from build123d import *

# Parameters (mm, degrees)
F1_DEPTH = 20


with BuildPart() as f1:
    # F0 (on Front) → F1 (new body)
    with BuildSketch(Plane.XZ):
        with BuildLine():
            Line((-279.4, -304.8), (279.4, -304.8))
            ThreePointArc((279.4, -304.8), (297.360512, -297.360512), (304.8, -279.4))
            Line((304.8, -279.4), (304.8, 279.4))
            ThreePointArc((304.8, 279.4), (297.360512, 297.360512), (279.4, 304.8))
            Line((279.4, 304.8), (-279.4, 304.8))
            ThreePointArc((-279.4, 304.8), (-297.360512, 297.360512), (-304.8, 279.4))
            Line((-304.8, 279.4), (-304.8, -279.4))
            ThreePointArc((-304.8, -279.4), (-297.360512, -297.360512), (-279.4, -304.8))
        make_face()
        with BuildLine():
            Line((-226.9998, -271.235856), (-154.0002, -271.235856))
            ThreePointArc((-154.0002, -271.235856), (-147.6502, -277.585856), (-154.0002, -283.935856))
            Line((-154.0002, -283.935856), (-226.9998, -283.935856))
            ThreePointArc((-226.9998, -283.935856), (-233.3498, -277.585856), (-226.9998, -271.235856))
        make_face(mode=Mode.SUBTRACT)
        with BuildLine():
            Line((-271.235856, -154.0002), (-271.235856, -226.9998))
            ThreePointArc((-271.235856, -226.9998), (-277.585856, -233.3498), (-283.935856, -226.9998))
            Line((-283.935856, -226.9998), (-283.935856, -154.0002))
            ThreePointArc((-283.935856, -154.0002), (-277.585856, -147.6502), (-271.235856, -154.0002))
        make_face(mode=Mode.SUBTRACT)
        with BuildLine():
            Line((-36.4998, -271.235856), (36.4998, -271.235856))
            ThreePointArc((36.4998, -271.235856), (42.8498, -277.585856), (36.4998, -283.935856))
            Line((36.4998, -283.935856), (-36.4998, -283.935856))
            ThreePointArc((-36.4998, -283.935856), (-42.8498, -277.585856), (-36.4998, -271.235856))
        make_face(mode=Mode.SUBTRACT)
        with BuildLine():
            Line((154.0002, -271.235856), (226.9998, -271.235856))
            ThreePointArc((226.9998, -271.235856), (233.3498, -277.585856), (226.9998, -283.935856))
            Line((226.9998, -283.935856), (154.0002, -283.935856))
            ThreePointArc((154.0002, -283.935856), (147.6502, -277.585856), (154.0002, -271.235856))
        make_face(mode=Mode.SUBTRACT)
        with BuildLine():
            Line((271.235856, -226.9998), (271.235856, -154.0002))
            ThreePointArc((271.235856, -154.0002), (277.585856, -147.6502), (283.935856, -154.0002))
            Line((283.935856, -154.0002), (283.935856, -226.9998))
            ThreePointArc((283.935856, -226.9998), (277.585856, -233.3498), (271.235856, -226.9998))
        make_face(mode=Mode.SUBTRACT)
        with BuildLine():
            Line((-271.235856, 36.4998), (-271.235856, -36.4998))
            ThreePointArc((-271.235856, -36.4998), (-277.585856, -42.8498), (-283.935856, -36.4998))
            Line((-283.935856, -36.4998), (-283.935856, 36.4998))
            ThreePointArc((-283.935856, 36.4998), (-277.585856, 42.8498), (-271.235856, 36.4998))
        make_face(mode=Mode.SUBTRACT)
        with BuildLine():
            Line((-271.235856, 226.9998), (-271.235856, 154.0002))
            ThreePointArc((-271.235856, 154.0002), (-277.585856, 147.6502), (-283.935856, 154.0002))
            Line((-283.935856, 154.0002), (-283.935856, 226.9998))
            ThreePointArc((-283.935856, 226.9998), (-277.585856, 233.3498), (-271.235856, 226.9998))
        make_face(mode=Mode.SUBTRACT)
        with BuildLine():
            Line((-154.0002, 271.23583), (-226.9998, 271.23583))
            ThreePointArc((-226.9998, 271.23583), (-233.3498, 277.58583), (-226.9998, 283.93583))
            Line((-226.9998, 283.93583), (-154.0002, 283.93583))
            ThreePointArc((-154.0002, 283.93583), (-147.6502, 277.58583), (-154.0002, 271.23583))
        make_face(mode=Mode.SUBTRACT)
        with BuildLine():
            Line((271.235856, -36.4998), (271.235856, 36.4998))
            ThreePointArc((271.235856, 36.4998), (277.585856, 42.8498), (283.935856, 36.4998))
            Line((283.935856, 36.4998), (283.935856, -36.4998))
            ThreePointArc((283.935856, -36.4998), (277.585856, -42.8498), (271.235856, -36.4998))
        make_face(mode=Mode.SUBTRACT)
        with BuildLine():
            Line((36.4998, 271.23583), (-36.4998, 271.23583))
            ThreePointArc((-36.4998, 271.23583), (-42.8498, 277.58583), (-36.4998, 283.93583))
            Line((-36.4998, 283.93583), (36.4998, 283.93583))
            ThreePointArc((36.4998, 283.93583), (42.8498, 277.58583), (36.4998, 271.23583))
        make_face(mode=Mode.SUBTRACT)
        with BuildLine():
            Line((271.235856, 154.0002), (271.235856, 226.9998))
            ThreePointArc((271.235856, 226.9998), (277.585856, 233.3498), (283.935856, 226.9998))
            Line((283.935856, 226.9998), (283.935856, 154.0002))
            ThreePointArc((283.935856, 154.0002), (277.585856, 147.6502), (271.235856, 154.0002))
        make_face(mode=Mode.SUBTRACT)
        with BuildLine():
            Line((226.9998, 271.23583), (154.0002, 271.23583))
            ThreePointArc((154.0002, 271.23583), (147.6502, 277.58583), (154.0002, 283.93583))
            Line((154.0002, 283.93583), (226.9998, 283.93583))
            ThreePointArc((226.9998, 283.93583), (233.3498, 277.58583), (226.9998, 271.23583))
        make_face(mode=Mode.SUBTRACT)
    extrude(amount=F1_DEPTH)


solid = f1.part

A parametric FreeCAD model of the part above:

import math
import FreeCAD as App
import Part
import Sketcher
from FreeCAD import Vector
Q = App.Units.Quantity

doc = App.newDocument("Part")
body = doc.addObject("PartDesign::Body", "Body")

sketch1 = body.newObject("Sketcher::SketchObject", "Sketch")
sketch1.AttachmentSupport = (doc.getObject("XZ_Plane"), [""])
sketch1.MapMode = "FlatFace"
sketch1.addGeometry(Part.LineSegment(Vector(-279, -305, 0), Vector(279, -305, 0)), False)
sketch1.addGeometry(Part.ArcOfCircle(Part.Circle(Vector(279, -279, 0), Vector(0, 0, 1), 25), math.radians(-90), math.radians(0)), False)
sketch1.addGeometry(Part.LineSegment(Vector(305, -279, 0), Vector(305, 279, 0)), False)
sketch1.addGeometry(Part.ArcOfCircle(Part.Circle(Vector(279, 279, 0), Vector(0, 0, 1), 25), math.radians(0), math.radians(90)), False)
sketch1.addGeometry(Part.LineSegment(Vector(279, 305, 0), Vector(-279, 305, 0)), False)
sketch1.addGeometry(Part.ArcOfCircle(Part.Circle(Vector(-279, 279, 0), Vector(0, 0, 1), 25), math.radians(90), math.radians(180)), False)
sketch1.addGeometry(Part.LineSegment(Vector(-305, 279, 0), Vector(-305, -279, 0)), False)
sketch1.addGeometry(Part.ArcOfCircle(Part.Circle(Vector(-279, -279, 0), Vector(0, 0, 1), 25), math.radians(-180), math.radians(-90)), False)
sketch1.addGeometry(Part.ArcOfCircle(Part.Circle(Vector(-227, -278, 0), Vector(0, 0, 1), 6), math.radians(90), math.radians(270)), False)
sketch1.addGeometry(Part.LineSegment(Vector(-227, -271, 0), Vector(-154, -271, 0)), False)
sketch1.addGeometry(Part.ArcOfCircle(Part.Circle(Vector(-154, -278, 0), Vector(0, 0, 1), 6), math.radians(-90), math.radians(90)), False)
sketch1.addGeometry(Part.LineSegment(Vector(-154, -284, 0), Vector(-227, -284, 0)), False)
sketch1.addGeometry(Part.ArcOfCircle(Part.Circle(Vector(-278, -154, 0), Vector(0, 0, 1), 6), math.radians(0), math.radians(180)), False)
sketch1.addGeometry(Part.LineSegment(Vector(-271, -154, 0), Vector(-271, -227, 0)), False)
sketch1.addGeometry(Part.ArcOfCircle(Part.Circle(Vector(-278, -227, 0), Vector(0, 0, 1), 6), math.radians(180), math.radians(360)), False)
sketch1.addGeometry(Part.LineSegment(Vector(-284, -227, 0), Vector(-284, -154, 0)), False)
sketch1.addGeometry(Part.ArcOfCircle(Part.Circle(Vector(-36, -278, 0), Vector(0, 0, 1), 6), math.radians(90), math.radians(270)), False)
sketch1.addGeometry(Part.LineSegment(Vector(-36, -271, 0), Vector(36, -271, 0)), False)
sketch1.addGeometry(Part.ArcOfCircle(Part.Circle(Vector(36, -278, 0), Vector(0, 0, 1), 6), math.radians(-90), math.radians(90)), False)
sketch1.addGeometry(Part.LineSegment(Vector(36, -284, 0), Vector(-36, -284, 0)), False)
sketch1.addGeometry(Part.ArcOfCircle(Part.Circle(Vector(154, -278, 0), Vector(0, 0, 1), 6), math.radians(90), math.radians(270)), False)
sketch1.addGeometry(Part.LineSegment(Vector(154, -271, 0), Vector(227, -271, 0)), False)
sketch1.addGeometry(Part.ArcOfCircle(Part.Circle(Vector(227, -278, 0), Vector(0, 0, 1), 6), math.radians(-90), math.radians(90)), False)
sketch1.addGeometry(Part.LineSegment(Vector(227, -284, 0), Vector(154, -284, 0)), False)
sketch1.addGeometry(Part.ArcOfCircle(Part.Circle(Vector(278, -227, 0), Vector(0, 0, 1), 6), math.radians(180), math.radians(360)), False)
sketch1.addGeometry(Part.LineSegment(Vector(271, -227, 0), Vector(271, -154, 0)), False)
sketch1.addGeometry(Part.ArcOfCircle(Part.Circle(Vector(278, -154, 0), Vector(0, 0, 1), 6), math.radians(0), math.radians(180)), False)
sketch1.addGeometry(Part.LineSegment(Vector(284, -154, 0), Vector(284, -227, 0)), False)
sketch1.addGeometry(Part.ArcOfCircle(Part.Circle(Vector(-278, 36, 0), Vector(0, 0, 1), 6), math.radians(0), math.radians(180)), False)
sketch1.addGeometry(Part.LineSegment(Vector(-271, 36, 0), Vector(-271, -36, 0)), False)
sketch1.addGeometry(Part.ArcOfCircle(Part.Circle(Vector(-278, -36, 0), Vector(0, 0, 1), 6), math.radians(180), math.radians(360)), False)
sketch1.addGeometry(Part.LineSegment(Vector(-284, -36, 0), Vector(-284, 36, 0)), False)
sketch1.addGeometry(Part.ArcOfCircle(Part.Circle(Vector(-278, 227, 0), Vector(0, 0, 1), 6), math.radians(0), math.radians(180)), False)
sketch1.addGeometry(Part.LineSegment(Vector(-271, 227, 0), Vector(-271, 154, 0)), False)
sketch1.addGeometry(Part.ArcOfCircle(Part.Circle(Vector(-278, 154, 0), Vector(0, 0, 1), 6), math.radians(180), math.radians(360)), False)
sketch1.addGeometry(Part.LineSegment(Vector(-284, 154, 0), Vector(-284, 227, 0)), False)
sketch1.addGeometry(Part.ArcOfCircle(Part.Circle(Vector(-154, 278, 0), Vector(0, 0, 1), 6), math.radians(-90), math.radians(90)), False)
sketch1.addGeometry(Part.LineSegment(Vector(-154, 271, 0), Vector(-227, 271, 0)), False)
sketch1.addGeometry(Part.ArcOfCircle(Part.Circle(Vector(-227, 278, 0), Vector(0, 0, 1), 6), math.radians(90), math.radians(270)), False)
sketch1.addGeometry(Part.LineSegment(Vector(-227, 284, 0), Vector(-154, 284, 0)), False)
sketch1.addGeometry(Part.ArcOfCircle(Part.Circle(Vector(278, -36, 0), Vector(0, 0, 1), 6), math.radians(180), math.radians(360)), False)
sketch1.addGeometry(Part.LineSegment(Vector(271, -36, 0), Vector(271, 36, 0)), False)
sketch1.addGeometry(Part.ArcOfCircle(Part.Circle(Vector(278, 36, 0), Vector(0, 0, 1), 6), math.radians(0), math.radians(180)), False)
sketch1.addGeometry(Part.LineSegment(Vector(284, 36, 0), Vector(284, -36, 0)), False)
sketch1.addGeometry(Part.ArcOfCircle(Part.Circle(Vector(36, 278, 0), Vector(0, 0, 1), 6), math.radians(-90), math.radians(90)), False)
sketch1.addGeometry(Part.LineSegment(Vector(36, 271, 0), Vector(-36, 271, 0)), False)
sketch1.addGeometry(Part.ArcOfCircle(Part.Circle(Vector(-36, 278, 0), Vector(0, 0, 1), 6), math.radians(90), math.radians(270)), False)
sketch1.addGeometry(Part.LineSegment(Vector(-36, 284, 0), Vector(36, 284, 0)), False)
sketch1.addGeometry(Part.ArcOfCircle(Part.Circle(Vector(278, 154, 0), Vector(0, 0, 1), 6), math.radians(180), math.radians(360)), False)
sketch1.addGeometry(Part.LineSegment(Vector(271, 154, 0), Vector(271, 227, 0)), False)
sketch1.addGeometry(Part.ArcOfCircle(Part.Circle(Vector(278, 227, 0), Vector(0, 0, 1), 6), math.radians(0), math.radians(180)), False)
sketch1.addGeometry(Part.LineSegment(Vector(284, 227, 0), Vector(284, 154, 0)), False)
sketch1.addGeometry(Part.ArcOfCircle(Part.Circle(Vector(227, 278, 0), Vector(0, 0, 1), 6), math.radians(-90), math.radians(90)), False)
sketch1.addGeometry(Part.LineSegment(Vector(227, 271, 0), Vector(154, 271, 0)), False)
sketch1.addGeometry(Part.ArcOfCircle(Part.Circle(Vector(154, 278, 0), Vector(0, 0, 1), 6), math.radians(90), math.radians(270)), False)
sketch1.addGeometry(Part.LineSegment(Vector(154, 284, 0), Vector(227, 284, 0)), False)
sketch1.addConstraint(Sketcher.Constraint("Tangent", 0, 2, 1, 1))
sketch1.addConstraint(Sketcher.Constraint("Tangent", 1, 2, 2, 1))
sketch1.addConstraint(Sketcher.Constraint("Tangent", 2, 2, 3, 1))
sketch1.addConstraint(Sketcher.Constraint("Tangent", 3, 2, 4, 1))
sketch1.addConstraint(Sketcher.Constraint("Tangent", 4, 2, 5, 1))
sketch1.addConstraint(Sketcher.Constraint("Tangent", 5, 2, 6, 1))
sketch1.addConstraint(Sketcher.Constraint("Tangent", 6, 2, 7, 1))
sketch1.addConstraint(Sketcher.Constraint("Tangent", 7, 2, 0, 1))
sketch1.addConstraint(Sketcher.Constraint("Tangent", 8, 1, 9, 1))
sketch1.addConstraint(Sketcher.Constraint("Tangent", 9, 2, 10, 2))
sketch1.addConstraint(Sketcher.Constraint("Tangent", 10, 1, 11, 1))
sketch1.addConstraint(Sketcher.Constraint("Tangent", 11, 2, 8, 2))
sketch1.addConstraint(Sketcher.Constraint("Tangent", 12, 1, 13, 1))
sketch1.addConstraint(Sketcher.Constraint("Tangent", 13, 2, 14, 2))
sketch1.addConstraint(Sketcher.Constraint("Tangent", 14, 1, 15, 1))
sketch1.addConstraint(Sketcher.Constraint("Tangent", 15, 2, 12, 2))
sketch1.addConstraint(Sketcher.Constraint("Tangent", 16, 1, 17, 1))
sketch1.addConstraint(Sketcher.Constraint("Tangent", 17, 2, 18, 2))
sketch1.addConstraint(Sketcher.Constraint("Tangent", 18, 1, 19, 1))
sketch1.addConstraint(Sketcher.Constraint("Tangent", 19, 2, 16, 2))
sketch1.addConstraint(Sketcher.Constraint("Tangent", 20, 1, 21, 1))
sketch1.addConstraint(Sketcher.Constraint("Tangent", 21, 2, 22, 2))
sketch1.addConstraint(Sketcher.Constraint("Tangent", 22, 1, 23, 1))
sketch1.addConstraint(Sketcher.Constraint("Tangent", 23, 2, 20, 2))
sketch1.addConstraint(Sketcher.Constraint("Tangent", 24, 1, 25, 1))
sketch1.addConstraint(Sketcher.Constraint("Tangent", 25, 2, 26, 2))
sketch1.addConstraint(Sketcher.Constraint("Tangent", 26, 1, 27, 1))
sketch1.addConstraint(Sketcher.Constraint("Tangent", 27, 2, 24, 2))
sketch1.addConstraint(Sketcher.Constraint("Tangent", 28, 1, 29, 1))
sketch1.addConstraint(Sketcher.Constraint("Tangent", 29, 2, 30, 2))
sketch1.addConstraint(Sketcher.Constraint("Tangent", 30, 1, 31, 1))
sketch1.addConstraint(Sketcher.Constraint("Tangent", 31, 2, 28, 2))
sketch1.addConstraint(Sketcher.Constraint("Tangent", 32, 1, 33, 1))
sketch1.addConstraint(Sketcher.Constraint("Tangent", 33, 2, 34, 2))
sketch1.addConstraint(Sketcher.Constraint("Tangent", 34, 1, 35, 1))
sketch1.addConstraint(Sketcher.Constraint("Tangent", 35, 2, 32, 2))
sketch1.addConstraint(Sketcher.Constraint("Tangent", 36, 1, 37, 1))
sketch1.addConstraint(Sketcher.Constraint("Tangent", 37, 2, 38, 2))
sketch1.addConstraint(Sketcher.Constraint("Tangent", 38, 1, 39, 1))
sketch1.addConstraint(Sketcher.Constraint("Tangent", 39, 2, 36, 2))
sketch1.addConstraint(Sketcher.Constraint("Tangent", 40, 1, 41, 1))
sketch1.addConstraint(Sketcher.Constraint("Tangent", 41, 2, 42, 2))
sketch1.addConstraint(Sketcher.Constraint("Tangent", 42, 1, 43, 1))
sketch1.addConstraint(Sketcher.Constraint("Tangent", 43, 2, 40, 2))
sketch1.addConstraint(Sketcher.Constraint("Tangent", 44, 1, 45, 1))
sketch1.addConstraint(Sketcher.Constraint("Tangent", 45, 2, 46, 2))
sketch1.addConstraint(Sketcher.Constraint("Tangent", 46, 1, 47, 1))
sketch1.addConstraint(Sketcher.Constraint("Tangent", 47, 2, 44, 2))
sketch1.addConstraint(Sketcher.Constraint("Tangent", 48, 1, 49, 1))
sketch1.addConstraint(Sketcher.Constraint("Tangent", 49, 2, 50, 2))
sketch1.addConstraint(Sketcher.Constraint("Tangent", 50, 1, 51, 1))
sketch1.addConstraint(Sketcher.Constraint("Tangent", 51, 2, 48, 2))
sketch1.addConstraint(Sketcher.Constraint("Tangent", 52, 1, 53, 1))
sketch1.addConstraint(Sketcher.Constraint("Tangent", 53, 2, 54, 2))
sketch1.addConstraint(Sketcher.Constraint("Tangent", 54, 1, 55, 1))
sketch1.addConstraint(Sketcher.Constraint("Tangent", 55, 2, 52, 2))
sketch1.addConstraint(Sketcher.Constraint("Horizontal", 0))
sketch1.addConstraint(Sketcher.Constraint("Vertical", 2))
sketch1.addConstraint(Sketcher.Constraint("Horizontal", 4))
sketch1.addConstraint(Sketcher.Constraint("Vertical", 6))
sketch1.addConstraint(Sketcher.Constraint("Horizontal", 9))
sketch1.addConstraint(Sketcher.Constraint("Horizontal", 11))
sketch1.addConstraint(Sketcher.Constraint("Vertical", 13))
sketch1.addConstraint(Sketcher.Constraint("Vertical", 15))
sketch1.addConstraint(Sketcher.Constraint("Horizontal", 17))
sketch1.addConstraint(Sketcher.Constraint("Horizontal", 19))
sketch1.addConstraint(Sketcher.Constraint("Horizontal", 21))
sketch1.addConstraint(Sketcher.Constraint("Horizontal", 23))
sketch1.addConstraint(Sketcher.Constraint("Vertical", 25))
sketch1.addConstraint(Sketcher.Constraint("Vertical", 27))
sketch1.addConstraint(Sketcher.Constraint("Vertical", 29))
sketch1.addConstraint(Sketcher.Constraint("Vertical", 31))
sketch1.addConstraint(Sketcher.Constraint("Vertical", 33))
sketch1.addConstraint(Sketcher.Constraint("Vertical", 35))
sketch1.addConstraint(Sketcher.Constraint("Horizontal", 37))
sketch1.addConstraint(Sketcher.Constraint("Horizontal", 39))
sketch1.addConstraint(Sketcher.Constraint("Vertical", 41))
sketch1.addConstraint(Sketcher.Constraint("Vertical", 43))
sketch1.addConstraint(Sketcher.Constraint("Horizontal", 45))
sketch1.addConstraint(Sketcher.Constraint("Horizontal", 47))
sketch1.addConstraint(Sketcher.Constraint("Vertical", 49))
sketch1.addConstraint(Sketcher.Constraint("Vertical", 51))
sketch1.addConstraint(Sketcher.Constraint("Horizontal", 53))
sketch1.addConstraint(Sketcher.Constraint("Horizontal", 55))
sketch1.addConstraint(Sketcher.Constraint("Equal", 1, 3))
sketch1.addConstraint(Sketcher.Constraint("Equal", 3, 5))
sketch1.addConstraint(Sketcher.Constraint("Equal", 5, 7))
sketch1.addConstraint(Sketcher.Constraint("Equal", 10, 12))
sketch1.addConstraint(Sketcher.Constraint("Equal", 14, 16))
sketch1.addConstraint(Sketcher.Constraint("Equal", 18, 20))
sketch1.addConstraint(Sketcher.Constraint("Equal", 22, 24))
sketch1.addConstraint(Sketcher.Constraint("Equal", 26, 28))
sketch1.addConstraint(Sketcher.Constraint("Equal", 30, 32))
sketch1.addConstraint(Sketcher.Constraint("Equal", 34, 36))
sketch1.addConstraint(Sketcher.Constraint("Equal", 38, 40))
sketch1.addConstraint(Sketcher.Constraint("Equal", 42, 44))
sketch1.addConstraint(Sketcher.Constraint("Equal", 46, 48))
sketch1.addConstraint(Sketcher.Constraint("Equal", 50, 52))
sketch1.addConstraint(Sketcher.Constraint("Symmetric", 1, 3, 5, 3, -1, 1))
sketch1.addConstraint(Sketcher.Constraint("Symmetric", 24, 3, 32, 3, -1, 1))
sketch1.addConstraint(Sketcher.Constraint("Symmetric", 28, 3, 40, 3, -1, 1))
sketch1.addConstraint(Sketcher.Constraint("Symmetric", 12, 3, 48, 3, -1, 1))
sketch1.addConstraint(Sketcher.Constraint("Symmetric", 10, 3, 20, 3, -2))
sketch1.addConstraint(Sketcher.Constraint("Symmetric", 14, 3, 24, 3, -2))
sketch1.addConstraint(Sketcher.Constraint("Symmetric", 38, 3, 52, 3, -2))
sketch1.addConstraint(Sketcher.Constraint("Horizontal", 10, 3, 16, 3))
sketch1.addConstraint(Sketcher.Constraint("Horizontal", 12, 3, 26, 3))
sketch1.addConstraint(Sketcher.Constraint("Horizontal", 30, 3, 40, 3))
sketch1.addConstraint(Sketcher.Constraint("Horizontal", 28, 3, 42, 3))
sketch1.addConstraint(Sketcher.Constraint("Horizontal", 38, 3, 44, 3))
sketch1.addConstraint(Sketcher.Constraint("Horizontal", 34, 3, 48, 3))
sketch1.addConstraint(Sketcher.Constraint("Horizontal", 32, 3, 50, 3))
sketch1.addConstraint(Sketcher.Constraint("Vertical", 14, 3, 28, 3))
sketch1.addConstraint(Sketcher.Constraint("Vertical", 10, 3, 36, 3))
sketch1.addConstraint(Sketcher.Constraint("Vertical", 8, 3, 38, 3))
sketch1.addConstraint(Sketcher.Constraint("Vertical", 18, 3, 44, 3))
sketch1.addConstraint(Sketcher.Constraint("Vertical", 16, 3, 46, 3))
sketch1.addConstraint(Sketcher.Constraint("Vertical", 22, 3, 52, 3))
sketch1.addConstraint(Sketcher.Constraint("Vertical", 20, 3, 54, 3))
sketch1.addConstraint(Sketcher.Constraint("Equal", 11, 17))
sketch1.addConstraint(Sketcher.Constraint("Equal", 4, 2))
sketch1.addConstraint(Sketcher.Constraint("Equal", 55, 13))
sketch1.addConstraint(Sketcher.Constraint("Equal", 27, 29))
sketch1.addConstraint(Sketcher.Constraint("Radius", 1, Q("1 in")))
sketch1.addConstraint(Sketcher.Constraint("DistanceX", 0, 1, 0, 2, Q("22 in")))
sketch1.addConstraint(Sketcher.Constraint("Radius", 8, Q("0.25 in")))
sketch1.addConstraint(Sketcher.Constraint("DistanceX", 9, 1, 9, 2, Q("2.874 in")))
sketch1.addConstraint(Sketcher.Constraint("DistanceX", 8, 3, -1, 1, Q("8.937 in")))
sketch1.addConstraint(Sketcher.Constraint("DistanceY", 12, 3, -1, 1, Q("6.063 in")))
sketch1.addConstraint(Sketcher.Constraint("DistanceX", 16, 3, -1, 1, Q("1.437 in")))
sketch1.addConstraint(Sketcher.Constraint("DistanceY", -1, 1, 36, 3, Q("277.58583 mm")))
sketch1.addConstraint(Sketcher.Constraint("DistanceY", 8, 3, -1, 1, Q("277.585856 mm")))
sketch1.addConstraint(Sketcher.Constraint("DistanceX", 12, 3, -1, 1, Q("277.585856 mm")))
pad1 = body.newObject("PartDesign::Pad", "Pad")
pad1.Profile = sketch1
pad1.Length = 20

doc.recompute()
